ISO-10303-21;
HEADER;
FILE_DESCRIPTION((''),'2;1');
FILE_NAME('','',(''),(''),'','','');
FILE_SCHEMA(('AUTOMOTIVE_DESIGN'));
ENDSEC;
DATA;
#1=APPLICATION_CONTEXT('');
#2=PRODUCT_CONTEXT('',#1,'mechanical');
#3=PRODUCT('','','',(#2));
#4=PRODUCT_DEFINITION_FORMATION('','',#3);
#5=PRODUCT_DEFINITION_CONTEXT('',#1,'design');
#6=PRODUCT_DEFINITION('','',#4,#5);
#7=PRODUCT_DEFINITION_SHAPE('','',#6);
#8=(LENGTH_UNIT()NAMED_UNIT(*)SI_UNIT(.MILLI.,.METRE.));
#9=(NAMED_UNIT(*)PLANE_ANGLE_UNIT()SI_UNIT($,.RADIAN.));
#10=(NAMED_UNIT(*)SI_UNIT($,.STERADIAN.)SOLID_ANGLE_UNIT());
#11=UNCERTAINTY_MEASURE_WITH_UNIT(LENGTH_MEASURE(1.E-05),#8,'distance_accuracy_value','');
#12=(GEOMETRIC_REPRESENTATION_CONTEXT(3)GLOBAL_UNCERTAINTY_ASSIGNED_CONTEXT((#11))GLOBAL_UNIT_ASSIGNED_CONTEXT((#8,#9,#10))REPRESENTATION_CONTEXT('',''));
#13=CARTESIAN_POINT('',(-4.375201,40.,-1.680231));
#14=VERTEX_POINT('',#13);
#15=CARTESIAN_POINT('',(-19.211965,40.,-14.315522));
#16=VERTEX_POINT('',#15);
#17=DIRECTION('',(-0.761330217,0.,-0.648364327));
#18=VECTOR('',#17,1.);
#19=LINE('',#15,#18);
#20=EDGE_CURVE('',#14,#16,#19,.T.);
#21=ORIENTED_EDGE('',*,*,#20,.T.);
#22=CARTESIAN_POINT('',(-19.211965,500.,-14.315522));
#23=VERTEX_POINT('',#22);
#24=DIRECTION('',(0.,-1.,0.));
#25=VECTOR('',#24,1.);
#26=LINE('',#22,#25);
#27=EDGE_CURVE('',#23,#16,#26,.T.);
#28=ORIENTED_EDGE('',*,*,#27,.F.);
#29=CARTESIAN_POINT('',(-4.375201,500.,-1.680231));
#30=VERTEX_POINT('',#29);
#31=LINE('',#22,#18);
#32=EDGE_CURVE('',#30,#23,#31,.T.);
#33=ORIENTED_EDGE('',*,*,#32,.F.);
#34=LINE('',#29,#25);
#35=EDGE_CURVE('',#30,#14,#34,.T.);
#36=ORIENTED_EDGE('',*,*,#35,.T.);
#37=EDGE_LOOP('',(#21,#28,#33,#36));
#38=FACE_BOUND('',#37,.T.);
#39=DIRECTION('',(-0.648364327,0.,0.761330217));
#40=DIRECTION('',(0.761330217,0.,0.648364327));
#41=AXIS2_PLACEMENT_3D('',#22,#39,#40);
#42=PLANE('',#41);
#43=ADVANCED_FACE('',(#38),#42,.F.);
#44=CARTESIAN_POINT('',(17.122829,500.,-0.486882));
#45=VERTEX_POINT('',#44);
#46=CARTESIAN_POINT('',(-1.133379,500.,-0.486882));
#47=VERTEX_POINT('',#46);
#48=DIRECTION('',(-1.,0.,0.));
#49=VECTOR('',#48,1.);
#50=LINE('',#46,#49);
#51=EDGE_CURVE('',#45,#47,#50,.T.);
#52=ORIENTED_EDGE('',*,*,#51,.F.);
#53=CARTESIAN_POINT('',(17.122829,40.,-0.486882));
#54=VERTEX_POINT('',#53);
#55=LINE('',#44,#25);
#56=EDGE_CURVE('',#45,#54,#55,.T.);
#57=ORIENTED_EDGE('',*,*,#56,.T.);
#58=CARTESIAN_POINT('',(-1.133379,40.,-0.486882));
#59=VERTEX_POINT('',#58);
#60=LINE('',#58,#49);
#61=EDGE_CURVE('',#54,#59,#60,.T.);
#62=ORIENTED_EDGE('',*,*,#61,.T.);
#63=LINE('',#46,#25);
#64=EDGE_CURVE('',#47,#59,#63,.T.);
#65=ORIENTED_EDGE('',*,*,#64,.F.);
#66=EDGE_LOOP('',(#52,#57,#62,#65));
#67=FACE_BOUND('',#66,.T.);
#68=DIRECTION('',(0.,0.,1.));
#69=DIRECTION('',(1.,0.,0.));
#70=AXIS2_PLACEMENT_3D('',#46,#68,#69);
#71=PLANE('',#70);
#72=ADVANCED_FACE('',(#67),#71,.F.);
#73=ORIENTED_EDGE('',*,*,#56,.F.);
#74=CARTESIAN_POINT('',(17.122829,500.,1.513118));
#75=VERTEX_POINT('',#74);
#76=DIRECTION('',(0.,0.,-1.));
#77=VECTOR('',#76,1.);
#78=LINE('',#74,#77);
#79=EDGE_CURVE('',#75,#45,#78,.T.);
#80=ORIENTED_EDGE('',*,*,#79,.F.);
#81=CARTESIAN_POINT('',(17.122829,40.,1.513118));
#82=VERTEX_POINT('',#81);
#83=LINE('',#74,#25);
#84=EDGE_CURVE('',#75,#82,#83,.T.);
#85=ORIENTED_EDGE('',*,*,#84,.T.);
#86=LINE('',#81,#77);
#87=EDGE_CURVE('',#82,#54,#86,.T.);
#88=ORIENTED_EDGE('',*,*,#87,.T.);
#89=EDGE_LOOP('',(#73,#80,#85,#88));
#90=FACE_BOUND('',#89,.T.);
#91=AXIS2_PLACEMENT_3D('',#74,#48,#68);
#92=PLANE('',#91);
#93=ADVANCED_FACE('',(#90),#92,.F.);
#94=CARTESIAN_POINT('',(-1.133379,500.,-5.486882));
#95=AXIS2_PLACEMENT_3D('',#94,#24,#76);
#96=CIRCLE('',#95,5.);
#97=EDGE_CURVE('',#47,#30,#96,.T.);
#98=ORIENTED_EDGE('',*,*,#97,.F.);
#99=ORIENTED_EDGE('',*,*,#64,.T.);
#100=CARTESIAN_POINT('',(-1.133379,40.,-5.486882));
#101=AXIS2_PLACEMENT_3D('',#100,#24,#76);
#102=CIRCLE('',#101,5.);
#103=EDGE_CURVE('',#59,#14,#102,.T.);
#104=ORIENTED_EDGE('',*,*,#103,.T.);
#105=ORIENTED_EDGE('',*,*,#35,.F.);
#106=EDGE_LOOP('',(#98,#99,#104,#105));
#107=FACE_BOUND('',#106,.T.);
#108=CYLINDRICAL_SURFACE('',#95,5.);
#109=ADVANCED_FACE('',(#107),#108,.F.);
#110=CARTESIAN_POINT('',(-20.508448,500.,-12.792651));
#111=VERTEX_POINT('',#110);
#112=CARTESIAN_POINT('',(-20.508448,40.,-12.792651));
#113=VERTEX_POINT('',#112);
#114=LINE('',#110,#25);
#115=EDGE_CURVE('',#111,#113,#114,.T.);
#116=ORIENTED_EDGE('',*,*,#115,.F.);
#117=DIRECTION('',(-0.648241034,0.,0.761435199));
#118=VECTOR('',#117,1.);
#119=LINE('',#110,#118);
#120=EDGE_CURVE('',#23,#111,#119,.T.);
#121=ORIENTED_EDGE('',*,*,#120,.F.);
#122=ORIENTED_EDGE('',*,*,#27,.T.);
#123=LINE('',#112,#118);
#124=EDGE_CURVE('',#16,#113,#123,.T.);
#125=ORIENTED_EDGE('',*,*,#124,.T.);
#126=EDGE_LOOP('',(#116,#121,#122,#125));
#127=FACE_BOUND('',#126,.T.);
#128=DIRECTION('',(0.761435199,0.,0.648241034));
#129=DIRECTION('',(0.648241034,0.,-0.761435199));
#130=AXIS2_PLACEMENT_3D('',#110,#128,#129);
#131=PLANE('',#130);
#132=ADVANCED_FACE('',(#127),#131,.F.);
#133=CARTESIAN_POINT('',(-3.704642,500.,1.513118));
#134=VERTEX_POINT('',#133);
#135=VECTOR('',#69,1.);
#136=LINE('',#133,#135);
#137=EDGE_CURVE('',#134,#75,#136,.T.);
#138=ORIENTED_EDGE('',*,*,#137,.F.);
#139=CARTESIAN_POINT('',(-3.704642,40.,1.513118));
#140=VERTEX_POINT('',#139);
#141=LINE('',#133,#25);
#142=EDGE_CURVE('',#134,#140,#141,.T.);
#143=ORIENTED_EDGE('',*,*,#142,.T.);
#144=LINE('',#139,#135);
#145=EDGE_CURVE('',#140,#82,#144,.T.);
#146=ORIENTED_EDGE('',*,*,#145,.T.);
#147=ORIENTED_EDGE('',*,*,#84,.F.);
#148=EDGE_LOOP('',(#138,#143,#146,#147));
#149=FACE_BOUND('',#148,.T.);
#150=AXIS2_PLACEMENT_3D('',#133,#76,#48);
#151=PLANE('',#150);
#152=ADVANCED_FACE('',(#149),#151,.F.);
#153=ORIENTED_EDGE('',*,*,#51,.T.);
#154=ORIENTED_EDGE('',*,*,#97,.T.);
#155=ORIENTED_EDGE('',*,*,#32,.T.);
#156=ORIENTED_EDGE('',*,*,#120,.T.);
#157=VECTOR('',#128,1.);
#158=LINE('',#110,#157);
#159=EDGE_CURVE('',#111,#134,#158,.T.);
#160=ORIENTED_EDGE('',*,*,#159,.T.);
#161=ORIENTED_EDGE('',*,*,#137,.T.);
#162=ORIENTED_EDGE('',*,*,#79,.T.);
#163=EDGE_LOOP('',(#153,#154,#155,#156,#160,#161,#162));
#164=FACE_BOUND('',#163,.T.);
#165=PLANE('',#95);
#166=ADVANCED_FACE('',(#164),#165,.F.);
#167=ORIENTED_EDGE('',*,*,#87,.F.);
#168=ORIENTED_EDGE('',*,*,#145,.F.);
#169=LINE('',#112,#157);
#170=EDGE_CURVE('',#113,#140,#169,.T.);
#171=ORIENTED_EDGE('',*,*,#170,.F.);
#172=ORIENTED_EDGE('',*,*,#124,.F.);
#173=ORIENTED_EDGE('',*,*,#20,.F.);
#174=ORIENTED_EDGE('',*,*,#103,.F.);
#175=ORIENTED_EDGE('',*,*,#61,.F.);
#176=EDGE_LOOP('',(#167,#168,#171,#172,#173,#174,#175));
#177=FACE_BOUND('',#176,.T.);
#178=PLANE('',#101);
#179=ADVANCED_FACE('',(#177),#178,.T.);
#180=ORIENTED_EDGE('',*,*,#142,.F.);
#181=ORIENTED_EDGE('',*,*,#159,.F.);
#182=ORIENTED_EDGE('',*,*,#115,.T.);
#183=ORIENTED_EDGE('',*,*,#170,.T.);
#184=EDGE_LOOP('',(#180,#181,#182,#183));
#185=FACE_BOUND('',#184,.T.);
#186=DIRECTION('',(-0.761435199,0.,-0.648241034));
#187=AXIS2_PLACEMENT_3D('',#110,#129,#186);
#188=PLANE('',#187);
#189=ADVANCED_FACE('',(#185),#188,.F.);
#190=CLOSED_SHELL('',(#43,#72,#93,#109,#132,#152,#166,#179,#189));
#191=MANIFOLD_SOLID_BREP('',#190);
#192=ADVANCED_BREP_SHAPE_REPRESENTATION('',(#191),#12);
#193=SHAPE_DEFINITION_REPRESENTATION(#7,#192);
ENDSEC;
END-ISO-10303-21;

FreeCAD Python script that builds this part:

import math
import FreeCAD as App
import Part
import Sketcher

V = App.Vector

doc = App.newDocument("Part")
body = doc.addObject("PartDesign::Body", "Body")

# Sketch on XZ plane
sketch1 = doc.addObject("Sketcher::SketchObject", "Sketch")
body.addObject(sketch1)
sketch1.AttachmentSupport = (doc.XZ_Plane, [""])
sketch1.MapMode = "FlatFace"
sketch1.AttachmentOffset = App.Placement(V(0, 0, -40), App.Rotation())
sketch1.addGeometry([
    Part.LineSegment(V(-19.211965, -14.315522, 0), V(-20.508448, -12.792651, 0)),  # 0
    Part.LineSegment(V(-20.508448, -12.792651, 0), V(-3.704642, 1.513118, 0)),  # 1
    Part.LineSegment(V(-3.704642, 1.513118, 0), V(17.122829, 1.513118, 0)),  # 2
    Part.LineSegment(V(17.122829, 1.513118, 0), V(17.122829, -0.486882, 0)),  # 3
    Part.LineSegment(V(17.122829, -0.486882, 0), V(-1.133379, -0.486882, 0)),  # 4
    Part.ArcOfCircle(Part.Circle(V(-1.133379, -5.486882, 0), V(0, 0, 1), 5), math.radians(90), math.radians(130.418392)),  # 5
    Part.LineSegment(V(-4.375201, -1.680231, 0), V(-19.211965, -14.315522, 0)),  # 6
], False)
sketch1.addConstraint([
    Sketcher.Constraint("Coincident", 0, 2, 1, 1),
    Sketcher.Constraint("Coincident", 1, 2, 2, 1),
    Sketcher.Constraint("Coincident", 2, 2, 3, 1),
    Sketcher.Constraint("Coincident", 3, 2, 4, 1),
    Sketcher.Constraint("Tangent", 4, 2, 5, 1),
    Sketcher.Constraint("Tangent", 5, 2, 6, 1),
    Sketcher.Constraint("Coincident", 6, 2, 0, 1),
    Sketcher.Constraint("Horizontal", 2),
    Sketcher.Constraint("Vertical", 3),
    Sketcher.Constraint("Horizontal", 4),
    Sketcher.Constraint("Perpendicular", 0, 1),
    Sketcher.Constraint("Radius", 5, 5.0),
    Sketcher.Constraint("DistanceY", 3, 2, 3, 1, 2.0),
    Sketcher.Constraint("Distance", 0, 2.0),
    Sketcher.Constraint("DistanceX", 2, 1, 2, 2, 20.827471),
    Sketcher.Constraint("DistanceX", 4, 2, 4, 1, 18.256208),
    Sketcher.Constraint("DistanceX", 5, 2, -1, 1, 4.375201),
    Sketcher.Constraint("Distance", 6, 19.487949),
    Sketcher.Constraint("DistanceX", 5, 3, -1, 1, 1.133379),
    Sketcher.Constraint("DistanceY", 5, 3, -1, 1, 5.486882),
])
pad1 = doc.addObject("PartDesign::Pad", "Pad")
body.addObject(pad1)
pad1.Profile = sketch1
pad1.Length = 460
pad1.Reversed = True

doc.recompute()
